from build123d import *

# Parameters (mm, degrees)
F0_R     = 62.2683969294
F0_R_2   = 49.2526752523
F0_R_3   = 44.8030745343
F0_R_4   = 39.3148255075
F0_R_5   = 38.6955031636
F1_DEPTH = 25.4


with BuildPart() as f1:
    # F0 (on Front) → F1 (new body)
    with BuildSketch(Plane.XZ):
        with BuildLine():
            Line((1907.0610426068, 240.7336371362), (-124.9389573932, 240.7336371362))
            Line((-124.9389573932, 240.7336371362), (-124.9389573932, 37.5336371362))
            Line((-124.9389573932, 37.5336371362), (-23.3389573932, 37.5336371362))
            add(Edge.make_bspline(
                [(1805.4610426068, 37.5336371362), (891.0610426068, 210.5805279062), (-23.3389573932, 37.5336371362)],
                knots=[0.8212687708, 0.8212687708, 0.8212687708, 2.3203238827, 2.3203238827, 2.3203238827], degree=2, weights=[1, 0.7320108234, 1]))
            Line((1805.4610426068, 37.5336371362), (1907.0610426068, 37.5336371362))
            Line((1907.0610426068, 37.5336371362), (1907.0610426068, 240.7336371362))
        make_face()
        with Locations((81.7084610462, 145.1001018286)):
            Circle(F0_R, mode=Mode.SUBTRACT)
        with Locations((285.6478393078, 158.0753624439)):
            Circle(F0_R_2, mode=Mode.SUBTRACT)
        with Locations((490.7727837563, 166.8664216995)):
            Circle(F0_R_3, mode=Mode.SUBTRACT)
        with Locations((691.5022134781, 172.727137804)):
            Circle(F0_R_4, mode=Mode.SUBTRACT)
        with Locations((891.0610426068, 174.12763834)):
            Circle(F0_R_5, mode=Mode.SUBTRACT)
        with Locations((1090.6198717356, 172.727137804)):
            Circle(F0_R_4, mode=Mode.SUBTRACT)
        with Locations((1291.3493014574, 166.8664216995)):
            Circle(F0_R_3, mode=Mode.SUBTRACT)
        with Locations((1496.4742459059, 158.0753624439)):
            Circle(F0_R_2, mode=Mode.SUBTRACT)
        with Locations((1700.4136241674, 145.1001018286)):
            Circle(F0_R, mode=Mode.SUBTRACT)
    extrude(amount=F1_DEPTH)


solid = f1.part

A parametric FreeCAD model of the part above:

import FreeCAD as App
import Part
import Sketcher

V = App.Vector
Q = App.Units.Quantity

doc = App.newDocument("Part")
body = doc.addObject("PartDesign::Body", "Body")

# Sketch on XZ plane
sketch1 = body.newObject("Sketcher::SketchObject", "Sketch")
sketch1.AttachmentSupport = (doc.getObject("XZ_Plane"), [""])
sketch1.MapMode = "FlatFace"
sketch1.addGeometry(Part.LineSegment(V(1907.061043, 240.733637, 0), V(-124.938957, 240.733637, 0)), False)
sketch1.addGeometry(Part.LineSegment(V(-124.938957, 240.733637, 0), V(-124.938957, 37.533637, 0)), False)
sketch1.addGeometry(Part.LineSegment(V(-124.938957, 37.533637, 0), V(-23.338957, 37.533637, 0)), False)
sketch1.addGeometry(Part.BSplineCurve([V(1805.461043, 37.533637, 0), V(891.061043, 210.580528, 0), V(-23.338957, 37.533637, 0)], [3, 3], [0.821268771, 2.320323883], False, 2, [1, 0.732010823, 1], False), False)
sketch1.addGeometry(Part.LineSegment(V(1805.461043, 37.533637, 0), V(1907.061043, 37.533637, 0)), False)
sketch1.addGeometry(Part.LineSegment(V(1907.061043, 37.533637, 0), V(1907.061043, 240.733637, 0)), False)
sketch1.addGeometry(Part.Circle(V(81.708461, 145.100102, 0), V(0, 0, 1), 62.268397), False)
sketch1.addGeometry(Part.Circle(V(1700.413624, 145.100102, 0), V(0, 0, 1), 62.268397), False)
sketch1.addGeometry(Part.Circle(V(285.647839, 158.075362, 0), V(0, 0, 1), 49.252675), False)
sketch1.addGeometry(Part.Circle(V(490.772784, 166.866422, 0), V(0, 0, 1), 44.803075), False)
sketch1.addGeometry(Part.Circle(V(691.502213, 172.727138, 0), V(0, 0, 1), 39.314826), False)
sketch1.addGeometry(Part.Circle(V(891.061043, 174.127638, 0), V(0, 0, 1), 38.695503), False)
sketch1.addGeometry(Part.Circle(V(1090.619872, 172.727138, 0), V(0, 0, 1), 39.314826), False)
sketch1.addGeometry(Part.Circle(V(1291.349301, 166.866422, 0), V(0, 0, 1), 44.803075), False)
sketch1.addGeometry(Part.Circle(V(1496.474246, 158.075362, 0), V(0, 0, 1), 49.252675), False)
sketch1.addConstraint(Sketcher.Constraint("Block", 3))
sketch1.addConstraint(Sketcher.Constraint("Coincident", 0, 2, 1, 1))
sketch1.addConstraint(Sketcher.Constraint("Coincident", 1, 2, 2, 1))
sketch1.addConstraint(Sketcher.Constraint("Coincident", 2, 2, 3, 2))
sketch1.addConstraint(Sketcher.Constraint("Coincident", 3, 1, 4, 1))
sketch1.addConstraint(Sketcher.Constraint("Coincident", 4, 2, 5, 1))
sketch1.addConstraint(Sketcher.Constraint("Coincident", 5, 2, 0, 1))
sketch1.addConstraint(Sketcher.Constraint("Horizontal", 0))
sketch1.addConstraint(Sketcher.Constraint("Vertical", 1))
sketch1.addConstraint(Sketcher.Constraint("Horizontal", 2))
sketch1.addConstraint(Sketcher.Constraint("Horizontal", 4))
sketch1.addConstraint(Sketcher.Constraint("Vertical", 5))
sketch1.addConstraint(Sketcher.Constraint("Equal", 6, 7))
sketch1.addConstraint(Sketcher.Constraint("Equal", 10, 12))
sketch1.addConstraint(Sketcher.Constraint("Equal", 9, 13))
sketch1.addConstraint(Sketcher.Constraint("Equal", 8, 14))
sketch1.addConstraint(Sketcher.Constraint("Horizontal", 6, 3, 7, 3))
sketch1.addConstraint(Sketcher.Constraint("Horizontal", 10, 3, 12, 3))
sketch1.addConstraint(Sketcher.Constraint("Horizontal", 9, 3, 13, 3))
sketch1.addConstraint(Sketcher.Constraint("Horizontal", 8, 3, 14, 3))
sketch1.addConstraint(Sketcher.Constraint("Equal", 2, 4))
sketch1.addConstraint(Sketcher.Constraint("DistanceX", 0, 2, 0, 1, Q("80 in")))
sketch1.addConstraint(Sketcher.Constraint("DistanceY", 1, 2, 1, 1, Q("8 in")))
sketch1.addConstraint(Sketcher.Constraint("DistanceX", 0, 2, 11, 3, Q("40 in")))
sketch1.addConstraint(Sketcher.Constraint("Diameter", 8, 98.505351))
sketch1.addConstraint(Sketcher.Constraint("Diameter", 9, 89.606149))
sketch1.addConstraint(Sketcher.Constraint("Diameter", 10, 78.629651))
sketch1.addConstraint(Sketcher.Constraint("Diameter", 6, 124.536794))
sketch1.addConstraint(Sketcher.Constraint("Diameter", 11, 77.391006))
sketch1.addConstraint(Sketcher.Constraint("DistanceY", 6, 3, 0, 2, Q("3.7650998 in")))
sketch1.addConstraint(Sketcher.Constraint("DistanceX", -1, 1, 13, 3, 1291.349301))
sketch1.addConstraint(Sketcher.Constraint("DistanceY", 10, 3, 11, 3, 1.400501))
sketch1.addConstraint(Sketcher.Constraint("DistanceY", 10, 3, 0, 2, 68.006499))
sketch1.addConstraint(Sketcher.Constraint("DistanceX", -1, 1, 6, 3, 81.708461))
sketch1.addConstraint(Sketcher.Constraint("DistanceX", -1, 1, 8, 3, 285.647839))
sketch1.addConstraint(Sketcher.Constraint("DistanceY", -1, 1, 9, 3, 166.866422))
sketch1.addConstraint(Sketcher.Constraint("DistanceX", -1, 1, 12, 3, 1090.619872))
sketch1.addConstraint(Sketcher.Constraint("DistanceY", 6, 3, 8, 3, 12.975261))
sketch1.addConstraint(Sketcher.Constraint("DistanceX", 9, 3, 7, 3, 1209.64084))
sketch1.addConstraint(Sketcher.Constraint("DistanceX", 9, 3, 10, 3, 200.72943))
sketch1.addConstraint(Sketcher.Constraint("DistanceX", 10, 3, 11, 3, 199.558829))
sketch1.addConstraint(Sketcher.Constraint("DistanceX", 14, 3, 7, 3, 203.939378))
pad1 = body.newObject("PartDesign::Pad", "Pad")
pad1.Profile = sketch1
pad1.Length = Q("1 in")

doc.recompute()
